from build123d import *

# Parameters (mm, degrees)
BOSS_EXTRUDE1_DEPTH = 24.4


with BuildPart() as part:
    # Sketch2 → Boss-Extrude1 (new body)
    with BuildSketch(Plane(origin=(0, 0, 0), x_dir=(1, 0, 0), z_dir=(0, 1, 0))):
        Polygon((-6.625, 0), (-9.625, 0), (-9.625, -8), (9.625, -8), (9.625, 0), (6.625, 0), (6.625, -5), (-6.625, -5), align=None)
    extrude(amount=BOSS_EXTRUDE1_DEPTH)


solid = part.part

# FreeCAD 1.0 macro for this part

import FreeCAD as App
import Part
import Sketcher

V = App.Vector


def add_polygon(sketch, points):
    """Adds a closed chain of lines whose ends are joined by coincident constraints."""
    first, n = sketch.GeometryCount, len(points)
    for a, b in zip(points, points[1:] + points[:1]):
        sketch.addGeometry(Part.LineSegment(App.Vector(*a, 0), App.Vector(*b, 0)), False)
    for i in range(n):
        sketch.addConstraint(Sketcher.Constraint("Coincident", first + i, 2, first + (i + 1) % n, 1))

doc = App.newDocument("Part")
body = doc.addObject("PartDesign::Body", "Body")

sketch1 = body.newObject("Sketcher::SketchObject", "Sketch")
sketch1.AttachmentSupport = (doc.getObject("XZ_Plane"), [""])
sketch1.MapMode = "FlatFace"
add_polygon(sketch1, [(-6.6, 0), (-9.6, 0), (-9.6, 8), (9.6, 8), (9.6, 0), (6.6, 0), (6.6, 5), (-6.6, 5)])
sketch1.addConstraint(Sketcher.Constraint("Horizontal", 0))
sketch1.addConstraint(Sketcher.Constraint("Vertical", 1))
sketch1.addConstraint(Sketcher.Constraint("Horizontal", 2))
sketch1.addConstraint(Sketcher.Constraint("Vertical", 3))
sketch1.addConstraint(Sketcher.Constraint("Horizontal", 4))
sketch1.addConstraint(Sketcher.Constraint("Vertical", 5))
sketch1.addConstraint(Sketcher.Constraint("Horizontal", 6))
sketch1.addConstraint(Sketcher.Constraint("Vertical", 7))
sketch1.addConstraint(Sketcher.Constraint("Symmetric", 0, 2, 3, 2, -1, 1))
sketch1.addConstraint(Sketcher.Constraint("Symmetric", 4, 2, 7, 2, -2))
sketch1.addConstraint(Sketcher.Constraint("DistanceX", 0, 2, 0, 1, 3.0))
sketch1.addConstraint(Sketcher.Constraint("DistanceY", 1, 1, 1, 2, 8.0))
sketch1.addConstraint(Sketcher.Constraint("DistanceY", 5, 1, 5, 2, 5.0))
sketch1.addConstraint(Sketcher.Constraint("DistanceX", 2, 1, 2, 2, 19.25))
pad1 = body.newObject("PartDesign::Pad", "Pad")
pad1.Profile = sketch1
pad1.Length = 24.4
pad1.Reversed = True

doc.recompute()
